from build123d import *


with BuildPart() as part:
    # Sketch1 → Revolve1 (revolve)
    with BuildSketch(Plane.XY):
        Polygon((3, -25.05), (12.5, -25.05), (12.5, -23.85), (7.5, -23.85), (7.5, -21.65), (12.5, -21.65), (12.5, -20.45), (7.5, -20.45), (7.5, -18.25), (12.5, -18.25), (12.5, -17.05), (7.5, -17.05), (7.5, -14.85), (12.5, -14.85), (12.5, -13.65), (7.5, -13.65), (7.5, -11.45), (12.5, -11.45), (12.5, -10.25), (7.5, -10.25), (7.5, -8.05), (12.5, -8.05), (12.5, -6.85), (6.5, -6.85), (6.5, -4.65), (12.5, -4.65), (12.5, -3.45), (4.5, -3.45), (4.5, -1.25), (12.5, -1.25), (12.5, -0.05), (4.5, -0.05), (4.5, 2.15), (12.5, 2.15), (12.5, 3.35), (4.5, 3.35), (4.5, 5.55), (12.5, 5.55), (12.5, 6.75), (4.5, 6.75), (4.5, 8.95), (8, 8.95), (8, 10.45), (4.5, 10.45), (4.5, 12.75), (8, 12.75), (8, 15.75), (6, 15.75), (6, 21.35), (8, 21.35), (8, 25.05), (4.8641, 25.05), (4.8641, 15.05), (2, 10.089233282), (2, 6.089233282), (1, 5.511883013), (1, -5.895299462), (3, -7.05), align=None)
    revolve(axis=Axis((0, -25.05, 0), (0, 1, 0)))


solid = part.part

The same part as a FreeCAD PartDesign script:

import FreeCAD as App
import Part
import Sketcher
Q = App.Units.Quantity

doc = App.newDocument("Part")
body = doc.addObject("PartDesign::Body", "Body")

# Sketch on XY plane
sketch1 = body.newObject("Sketcher::SketchObject", "Sketch")
sketch1.AttachmentSupport = (doc.getObject("XY_Plane"), [""])
sketch1.MapMode = "FlatFace"
sketch1.addGeometry([
    Part.LineSegment(App.Vector(3, -25.1, 0), App.Vector(12.5, -25.1, 0)),  # 0
    Part.LineSegment(App.Vector(12.5, -25.1, 0), App.Vector(12.5, -23.9, 0)),  # 1
    Part.LineSegment(App.Vector(12.5, -23.9, 0), App.Vector(7.5, -23.9, 0)),  # 2
    Part.LineSegment(App.Vector(7.5, -23.9, 0), App.Vector(7.5, -21.6, 0)),  # 3
    Part.LineSegment(App.Vector(7.5, -21.6, 0), App.Vector(12.5, -21.6, 0)),  # 4
    Part.LineSegment(App.Vector(12.5, -21.6, 0), App.Vector(12.5, -20.4, 0)),  # 5
    Part.LineSegment(App.Vector(12.5, -20.4, 0), App.Vector(7.5, -20.4, 0)),  # 6
    Part.LineSegment(App.Vector(7.5, -20.4, 0), App.Vector(7.5, -18.2, 0)),  # 7
    Part.LineSegment(App.Vector(7.5, -18.2, 0), App.Vector(12.5, -18.2, 0)),  # 8
    Part.LineSegment(App.Vector(12.5, -18.2, 0), App.Vector(12.5, -17.1, 0)),  # 9
    Part.LineSegment(App.Vector(12.5, -17.1, 0), App.Vector(7.5, -17.1, 0)),  # 10
    Part.LineSegment(App.Vector(7.5, -17.1, 0), App.Vector(7.5, -14.8, 0)),  # 11
    Part.LineSegment(App.Vector(7.5, -14.8, 0), App.Vector(12.5, -14.8, 0)),  # 12
    Part.LineSegment(App.Vector(12.5, -14.8, 0), App.Vector(12.5, -13.7, 0)),  # 13
    Part.LineSegment(App.Vector(12.5, -13.7, 0), App.Vector(7.5, -13.7, 0)),  # 14
    Part.LineSegment(App.Vector(7.5, -13.7, 0), App.Vector(7.5, -11.4, 0)),  # 15
    Part.LineSegment(App.Vector(7.5, -11.4, 0), App.Vector(12.5, -11.4, 0)),  # 16
    Part.LineSegment(App.Vector(12.5, -11.4, 0), App.Vector(12.5, -10.2, 0)),  # 17
    Part.LineSegment(App.Vector(12.5, -10.2, 0), App.Vector(7.5, -10.2, 0)),  # 18
    Part.LineSegment(App.Vector(7.5, -10.2, 0), App.Vector(7.5, -8.1, 0)),  # 19
    Part.LineSegment(App.Vector(7.5, -8.1, 0), App.Vector(12.5, -8.1, 0)),  # 20
    Part.LineSegment(App.Vector(12.5, -8.1, 0), App.Vector(12.5, -6.8, 0)),  # 21
    Part.LineSegment(App.Vector(12.5, -6.8, 0), App.Vector(6.5, -6.8, 0)),  # 22
    Part.LineSegment(App.Vector(6.5, -6.8, 0), App.Vector(6.5, -4.7, 0)),  # 23
    Part.LineSegment(App.Vector(6.5, -4.7, 0), App.Vector(12.5, -4.7, 0)),  # 24
    Part.LineSegment(App.Vector(12.5, -4.7, 0), App.Vector(12.5, -3.5, 0)),  # 25
    Part.LineSegment(App.Vector(12.5, -3.5, 0), App.Vector(4.5, -3.5, 0)),  # 26
    Part.LineSegment(App.Vector(4.5, -3.5, 0), App.Vector(4.5, -1.2, 0)),  # 27
    Part.LineSegment(App.Vector(4.5, -1.2, 0), App.Vector(12.5, -1.2, 0)),  # 28
    Part.LineSegment(App.Vector(12.5, -1.2, 0), App.Vector(12.5, -0.1, 0)),  # 29
    Part.LineSegment(App.Vector(12.5, -0.1, 0), App.Vector(4.5, -0.1, 0)),  # 30
    Part.LineSegment(App.Vector(4.5, -0.1, 0), App.Vector(4.5, 2.1, 0)),  # 31
    Part.LineSegment(App.Vector(4.5, 2.1, 0), App.Vector(12.5, 2.1, 0)),  # 32
    Part.LineSegment(App.Vector(12.5, 2.1, 0), App.Vector(12.5, 3.4, 0)),  # 33
    Part.LineSegment(App.Vector(12.5, 3.4, 0), App.Vector(4.5, 3.4, 0)),  # 34
    Part.LineSegment(App.Vector(4.5, 3.4, 0), App.Vector(4.5, 5.5, 0)),  # 35
    Part.LineSegment(App.Vector(4.5, 5.5, 0), App.Vector(12.5, 5.5, 0)),  # 36
    Part.LineSegment(App.Vector(12.5, 5.5, 0), App.Vector(12.5, 6.8, 0)),  # 37
    Part.LineSegment(App.Vector(12.5, 6.8, 0), App.Vector(4.5, 6.8, 0)),  # 38
    Part.LineSegment(App.Vector(4.5, 6.8, 0), App.Vector(4.5, 8.9, 0)),  # 39
    Part.LineSegment(App.Vector(4.5, 8.9, 0), App.Vector(8, 8.9, 0)),  # 40
    Part.LineSegment(App.Vector(8, 8.9, 0), App.Vector(8, 10.4, 0)),  # 41
    Part.LineSegment(App.Vector(8, 10.4, 0), App.Vector(4.5, 10.4, 0)),  # 42
    Part.LineSegment(App.Vector(4.5, 10.4, 0), App.Vector(4.5, 12.8, 0)),  # 43
    Part.LineSegment(App.Vector(4.5, 12.8, 0), App.Vector(8, 12.8, 0)),  # 44
    Part.LineSegment(App.Vector(8, 12.8, 0), App.Vector(8, 15.8, 0)),  # 45
    Part.LineSegment(App.Vector(8, 15.8, 0), App.Vector(6, 15.8, 0)),  # 46
    Part.LineSegment(App.Vector(6, 15.8, 0), App.Vector(6, 21.4, 0)),  # 47
    Part.LineSegment(App.Vector(6, 21.4, 0), App.Vector(8, 21.4, 0)),  # 48
    Part.LineSegment(App.Vector(8, 21.4, 0), App.Vector(8, 25.1, 0)),  # 49
    Part.LineSegment(App.Vector(8, 25.1, 0), App.Vector(4.9, 25.1, 0)),  # 50
    Part.LineSegment(App.Vector(4.9, 25.1, 0), App.Vector(4.9, 15.1, 0)),  # 51
    Part.LineSegment(App.Vector(4.9, 15.1, 0), App.Vector(2, 10.1, 0)),  # 52
    Part.LineSegment(App.Vector(2, 10.1, 0), App.Vector(2, 6.1, 0)),  # 53
    Part.LineSegment(App.Vector(2, 6.1, 0), App.Vector(1, 5.5, 0)),  # 54
    Part.LineSegment(App.Vector(1, 5.5, 0), App.Vector(1, -5.9, 0)),  # 55
    Part.LineSegment(App.Vector(1, -5.9, 0), App.Vector(3, -7, 0)),  # 56
    Part.LineSegment(App.Vector(3, -7, 0), App.Vector(3, -25.1, 0)),  # 57
], False)
sketch1.addConstraint([
    Sketcher.Constraint("Coincident", 0, 2, 1, 1),
    Sketcher.Constraint("Coincident", 1, 2, 2, 1),
    Sketcher.Constraint("Coincident", 2, 2, 3, 1),
    Sketcher.Constraint("Coincident", 3, 2, 4, 1),
    Sketcher.Constraint("Coincident", 4, 2, 5, 1),
    Sketcher.Constraint("Coincident", 5, 2, 6, 1),
    Sketcher.Constraint("Coincident", 6, 2, 7, 1),
    Sketcher.Constraint("Coincident", 7, 2, 8, 1),
    Sketcher.Constraint("Coincident", 8, 2, 9, 1),
    Sketcher.Constraint("Coincident", 9, 2, 10, 1),
    Sketcher.Constraint("Coincident", 10, 2, 11, 1),
    Sketcher.Constraint("Coincident", 11, 2, 12, 1),
    Sketcher.Constraint("Coincident", 12, 2, 13, 1),
    Sketcher.Constraint("Coincident", 13, 2, 14, 1),
    Sketcher.Constraint("Coincident", 14, 2, 15, 1),
    Sketcher.Constraint("Coincident", 15, 2, 16, 1),
    Sketcher.Constraint("Coincident", 16, 2, 17, 1),
    Sketcher.Constraint("Coincident", 17, 2, 18, 1),
    Sketcher.Constraint("Coincident", 18, 2, 19, 1),
    Sketcher.Constraint("Coincident", 19, 2, 20, 1),
    Sketcher.Constraint("Coincident", 20, 2, 21, 1),
    Sketcher.Constraint("Coincident", 21, 2, 22, 1),
    Sketcher.Constraint("Coincident", 22, 2, 23, 1),
    Sketcher.Constraint("Coincident", 23, 2, 24, 1),
    Sketcher.Constraint("Coincident", 24, 2, 25, 1),
    Sketcher.Constraint("Coincident", 25, 2, 26, 1),
    Sketcher.Constraint("Coincident", 26, 2, 27, 1),
    Sketcher.Constraint("Coincident", 27, 2, 28, 1),
    Sketcher.Constraint("Coincident", 28, 2, 29, 1),
    Sketcher.Constraint("Coincident", 29, 2, 30, 1),
    Sketcher.Constraint("Coincident", 30, 2, 31, 1),
    Sketcher.Constraint("Coincident", 31, 2, 32, 1),
    Sketcher.Constraint("Coincident", 32, 2, 33, 1),
    Sketcher.Constraint("Coincident", 33, 2, 34, 1),
    Sketcher.Constraint("Coincident", 34, 2, 35, 1),
    Sketcher.Constraint("Coincident", 35, 2, 36, 1),
    Sketcher.Constraint("Coincident", 36, 2, 37, 1),
    Sketcher.Constraint("Coincident", 37, 2, 38, 1),
    Sketcher.Constraint("Coincident", 38, 2, 39, 1),
    Sketcher.Constraint("Coincident", 39, 2, 40, 1),
    Sketcher.Constraint("Coincident", 40, 2, 41, 1),
    Sketcher.Constraint("Coincident", 41, 2, 42, 1),
    Sketcher.Constraint("Coincident", 42, 2, 43, 1),
    Sketcher.Constraint("Coincident", 43, 2, 44, 1),
    Sketcher.Constraint("Coincident", 44, 2, 45, 1),
    Sketcher.Constraint("Coincident", 45, 2, 46, 1),
    Sketcher.Constraint("Coincident", 46, 2, 47, 1),
    Sketcher.Constraint("Coincident", 47, 2, 48, 1),
    Sketcher.Constraint("Coincident", 48, 2, 49, 1),
    Sketcher.Constraint("Coincident", 49, 2, 50, 1),
    Sketcher.Constraint("Coincident", 50, 2, 51, 1),
    Sketcher.Constraint("Coincident", 51, 2, 52, 1),
    Sketcher.Constraint("Coincident", 52, 2, 53, 1),
    Sketcher.Constraint("Coincident", 53, 2, 54, 1),
    Sketcher.Constraint("Coincident", 54, 2, 55, 1),
    Sketcher.Constraint("Coincident", 55, 2, 56, 1),
    Sketcher.Constraint("Coincident", 56, 2, 57, 1),
    Sketcher.Constraint("Coincident", 57, 2, 0, 1),
    Sketcher.Constraint("Horizontal", 0),
    Sketcher.Constraint("Vertical", 1),
    Sketcher.Constraint("Horizontal", 2),
    Sketcher.Constraint("Vertical", 3),
    Sketcher.Constraint("Horizontal", 4),
    Sketcher.Constraint("Vertical", 5),
    Sketcher.Constraint("Horizontal", 6),
    Sketcher.Constraint("Vertical", 7),
    Sketcher.Constraint("Horizontal", 8),
    Sketcher.Constraint("Vertical", 9),
    Sketcher.Constraint("Horizontal", 10),
    Sketcher.Constraint("Vertical", 11),
    Sketcher.Constraint("Horizontal", 12),
    Sketcher.Constraint("Vertical", 13),
    Sketcher.Constraint("Horizontal", 14),
    Sketcher.Constraint("Vertical", 15),
    Sketcher.Constraint("Horizontal", 16),
    Sketcher.Constraint("Vertical", 17),
    Sketcher.Constraint("Horizontal", 18),
    Sketcher.Constraint("Vertical", 19),
    Sketcher.Constraint("Horizontal", 20),
    Sketcher.Constraint("Vertical", 21),
    Sketcher.Constraint("Horizontal", 22),
    Sketcher.Constraint("Vertical", 23),
    Sketcher.Constraint("Horizontal", 24),
    Sketcher.Constraint("Vertical", 25),
    Sketcher.Constraint("Horizontal", 26),
    Sketcher.Constraint("Vertical", 27),
    Sketcher.Constraint("Horizontal", 28),
    Sketcher.Constraint("Vertical", 29),
    Sketcher.Constraint("Horizontal", 30),
    Sketcher.Constraint("Vertical", 31),
    Sketcher.Constraint("Horizontal", 32),
    Sketcher.Constraint("Vertical", 33),
    Sketcher.Constraint("Horizontal", 34),
    Sketcher.Constraint("Vertical", 35),
    Sketcher.Constraint("Horizontal", 36),
    Sketcher.Constraint("Vertical", 37),
    Sketcher.Constraint("Horizontal", 38),
    Sketcher.Constraint("Vertical", 39),
    Sketcher.Constraint("Horizontal", 40),
    Sketcher.Constraint("Vertical", 41),
    Sketcher.Constraint("Horizontal", 42),
    Sketcher.Constraint("Vertical", 43),
    Sketcher.Constraint("Horizontal", 44),
    Sketcher.Constraint("Vertical", 45),
    Sketcher.Constraint("Horizontal", 46),
    Sketcher.Constraint("Vertical", 47),
    Sketcher.Constraint("Horizontal", 48),
    Sketcher.Constraint("Vertical", 49),
    Sketcher.Constraint("Horizontal", 50),
    Sketcher.Constraint("Vertical", 51),
    Sketcher.Constraint("Vertical", 53),
    Sketcher.Constraint("Vertical", 55),
    Sketcher.Constraint("Vertical", 57),
    Sketcher.Constraint("Perpendicular", 52, 56),
    Sketcher.Constraint("Vertical", 1, 2, 4, 2),
    Sketcher.Constraint("Vertical", 3, 2, 6, 2),
    Sketcher.Constraint("Vertical", 5, 2, 8, 2),
    Sketcher.Constraint("Vertical", 7, 2, 10, 2),
    Sketcher.Constraint("Vertical", 9, 2, 12, 2),
    Sketcher.Constraint("Vertical", 11, 2, 14, 2),
    Sketcher.Constraint("Vertical", 13, 2, 16, 2),
    Sketcher.Constraint("Vertical", 15, 2, 18, 2),
    Sketcher.Constraint("Vertical", 17, 2, 20, 2),
    Sketcher.Constraint("Vertical", 21, 2, 24, 2),
    Sketcher.Constraint("Vertical", 25, 2, 28, 2),
    Sketcher.Constraint("Vertical", 27, 2, 30, 2),
    Sketcher.Constraint("Vertical", 29, 2, 32, 2),
    Sketcher.Constraint("Vertical", 31, 2, 34, 2),
    Sketcher.Constraint("Vertical", 33, 2, 36, 2),
    Sketcher.Constraint("Vertical", 35, 2, 38, 2),
    Sketcher.Constraint("Vertical", 39, 2, 42, 2),
    Sketcher.Constraint("Vertical", 41, 2, 44, 2),
    Sketcher.Constraint("Vertical", 45, 2, 48, 2),
    Sketcher.Constraint("Equal", 1, 5),
    Sketcher.Constraint("Equal", 3, 7),
    Sketcher.Constraint("Equal", 5, 9),
    Sketcher.Constraint("Equal", 7, 11),
    Sketcher.Constraint("Equal", 9, 13),
    Sketcher.Constraint("Equal", 11, 15),
    Sketcher.Constraint("Equal", 13, 17),
    Sketcher.Constraint("Equal", 15, 19),
    Sketcher.Constraint("Equal", 17, 21),
    Sketcher.Constraint("Equal", 19, 23),
    Sketcher.Constraint("Equal", 21, 25),
    Sketcher.Constraint("Equal", 23, 27),
    Sketcher.Constraint("Equal", 25, 29),
    Sketcher.Constraint("Equal", 27, 31),
    Sketcher.Constraint("Equal", 29, 33),
    Sketcher.Constraint("Equal", 31, 35),
    Sketcher.Constraint("Equal", 33, 37),
    Sketcher.Constraint("Equal", 35, 39),
    Sketcher.Constraint("DistanceX", 2, 2, 2, 1, 5.0),
    Sketcher.Constraint("DistanceX", 22, 2, 22, 1, 6.0),
    Sketcher.Constraint("DistanceX", 26, 2, 26, 1, 8.0),
    Sketcher.Constraint("DistanceX", 46, 2, 46, 1, 2.0),
    Sketcher.Constraint("DistanceY", 45, 1, 45, 2, 3.0),
    Sketcher.Constraint("DistanceY", 51, 2, 51, 1, 10.0),
    Sketcher.Constraint("DistanceY", 53, 2, 53, 1, 4.0),
    Sketcher.Constraint("DistanceY", 57, 2, 57, 1, 18.0),
    Sketcher.Constraint("Angle", 52, Q("-120 deg")),
    Sketcher.Constraint("Angle", 54, Q("-150 deg")),
    Sketcher.Constraint("DistanceX", 0, 1, 0, 2, 9.5),
    Sketcher.Constraint("DistanceX", 40, 1, 40, 2, 3.5),
    Sketcher.Constraint("DistanceY", 1, 1, 1, 2, 1.2),
    Sketcher.Constraint("DistanceY", 3, 1, 3, 2, 2.2),
    Sketcher.Constraint("DistanceY", 41, 1, 41, 2, 1.5),
    Sketcher.Constraint("DistanceY", 43, 1, 43, 2, 2.3),
    Sketcher.Constraint("DistanceY", 47, 1, 47, 2, 5.6),
    Sketcher.Constraint("DistanceY", 49, 1, 49, 2, 3.7),
    Sketcher.Constraint("DistanceX", -1, 1, 40, 2, 8.0),
    Sketcher.Constraint("DistanceX", -1, 1, 52, 2, 2.0),
    Sketcher.Constraint("DistanceX", -1, 1, 54, 2, 1.0),
    Sketcher.Constraint("DistanceY", 0, 2, -1, 1, 25.05),
    Sketcher.Constraint("DistanceX", 50, 2, 50, 1, 3.1359),
])
revolution = body.newObject("PartDesign::Revolution", "Revolution")
revolution.Profile = sketch1
revolution.ReferenceAxis = (sketch1, ["V_Axis"])
revolution.Angle = 360

doc.recompute()
